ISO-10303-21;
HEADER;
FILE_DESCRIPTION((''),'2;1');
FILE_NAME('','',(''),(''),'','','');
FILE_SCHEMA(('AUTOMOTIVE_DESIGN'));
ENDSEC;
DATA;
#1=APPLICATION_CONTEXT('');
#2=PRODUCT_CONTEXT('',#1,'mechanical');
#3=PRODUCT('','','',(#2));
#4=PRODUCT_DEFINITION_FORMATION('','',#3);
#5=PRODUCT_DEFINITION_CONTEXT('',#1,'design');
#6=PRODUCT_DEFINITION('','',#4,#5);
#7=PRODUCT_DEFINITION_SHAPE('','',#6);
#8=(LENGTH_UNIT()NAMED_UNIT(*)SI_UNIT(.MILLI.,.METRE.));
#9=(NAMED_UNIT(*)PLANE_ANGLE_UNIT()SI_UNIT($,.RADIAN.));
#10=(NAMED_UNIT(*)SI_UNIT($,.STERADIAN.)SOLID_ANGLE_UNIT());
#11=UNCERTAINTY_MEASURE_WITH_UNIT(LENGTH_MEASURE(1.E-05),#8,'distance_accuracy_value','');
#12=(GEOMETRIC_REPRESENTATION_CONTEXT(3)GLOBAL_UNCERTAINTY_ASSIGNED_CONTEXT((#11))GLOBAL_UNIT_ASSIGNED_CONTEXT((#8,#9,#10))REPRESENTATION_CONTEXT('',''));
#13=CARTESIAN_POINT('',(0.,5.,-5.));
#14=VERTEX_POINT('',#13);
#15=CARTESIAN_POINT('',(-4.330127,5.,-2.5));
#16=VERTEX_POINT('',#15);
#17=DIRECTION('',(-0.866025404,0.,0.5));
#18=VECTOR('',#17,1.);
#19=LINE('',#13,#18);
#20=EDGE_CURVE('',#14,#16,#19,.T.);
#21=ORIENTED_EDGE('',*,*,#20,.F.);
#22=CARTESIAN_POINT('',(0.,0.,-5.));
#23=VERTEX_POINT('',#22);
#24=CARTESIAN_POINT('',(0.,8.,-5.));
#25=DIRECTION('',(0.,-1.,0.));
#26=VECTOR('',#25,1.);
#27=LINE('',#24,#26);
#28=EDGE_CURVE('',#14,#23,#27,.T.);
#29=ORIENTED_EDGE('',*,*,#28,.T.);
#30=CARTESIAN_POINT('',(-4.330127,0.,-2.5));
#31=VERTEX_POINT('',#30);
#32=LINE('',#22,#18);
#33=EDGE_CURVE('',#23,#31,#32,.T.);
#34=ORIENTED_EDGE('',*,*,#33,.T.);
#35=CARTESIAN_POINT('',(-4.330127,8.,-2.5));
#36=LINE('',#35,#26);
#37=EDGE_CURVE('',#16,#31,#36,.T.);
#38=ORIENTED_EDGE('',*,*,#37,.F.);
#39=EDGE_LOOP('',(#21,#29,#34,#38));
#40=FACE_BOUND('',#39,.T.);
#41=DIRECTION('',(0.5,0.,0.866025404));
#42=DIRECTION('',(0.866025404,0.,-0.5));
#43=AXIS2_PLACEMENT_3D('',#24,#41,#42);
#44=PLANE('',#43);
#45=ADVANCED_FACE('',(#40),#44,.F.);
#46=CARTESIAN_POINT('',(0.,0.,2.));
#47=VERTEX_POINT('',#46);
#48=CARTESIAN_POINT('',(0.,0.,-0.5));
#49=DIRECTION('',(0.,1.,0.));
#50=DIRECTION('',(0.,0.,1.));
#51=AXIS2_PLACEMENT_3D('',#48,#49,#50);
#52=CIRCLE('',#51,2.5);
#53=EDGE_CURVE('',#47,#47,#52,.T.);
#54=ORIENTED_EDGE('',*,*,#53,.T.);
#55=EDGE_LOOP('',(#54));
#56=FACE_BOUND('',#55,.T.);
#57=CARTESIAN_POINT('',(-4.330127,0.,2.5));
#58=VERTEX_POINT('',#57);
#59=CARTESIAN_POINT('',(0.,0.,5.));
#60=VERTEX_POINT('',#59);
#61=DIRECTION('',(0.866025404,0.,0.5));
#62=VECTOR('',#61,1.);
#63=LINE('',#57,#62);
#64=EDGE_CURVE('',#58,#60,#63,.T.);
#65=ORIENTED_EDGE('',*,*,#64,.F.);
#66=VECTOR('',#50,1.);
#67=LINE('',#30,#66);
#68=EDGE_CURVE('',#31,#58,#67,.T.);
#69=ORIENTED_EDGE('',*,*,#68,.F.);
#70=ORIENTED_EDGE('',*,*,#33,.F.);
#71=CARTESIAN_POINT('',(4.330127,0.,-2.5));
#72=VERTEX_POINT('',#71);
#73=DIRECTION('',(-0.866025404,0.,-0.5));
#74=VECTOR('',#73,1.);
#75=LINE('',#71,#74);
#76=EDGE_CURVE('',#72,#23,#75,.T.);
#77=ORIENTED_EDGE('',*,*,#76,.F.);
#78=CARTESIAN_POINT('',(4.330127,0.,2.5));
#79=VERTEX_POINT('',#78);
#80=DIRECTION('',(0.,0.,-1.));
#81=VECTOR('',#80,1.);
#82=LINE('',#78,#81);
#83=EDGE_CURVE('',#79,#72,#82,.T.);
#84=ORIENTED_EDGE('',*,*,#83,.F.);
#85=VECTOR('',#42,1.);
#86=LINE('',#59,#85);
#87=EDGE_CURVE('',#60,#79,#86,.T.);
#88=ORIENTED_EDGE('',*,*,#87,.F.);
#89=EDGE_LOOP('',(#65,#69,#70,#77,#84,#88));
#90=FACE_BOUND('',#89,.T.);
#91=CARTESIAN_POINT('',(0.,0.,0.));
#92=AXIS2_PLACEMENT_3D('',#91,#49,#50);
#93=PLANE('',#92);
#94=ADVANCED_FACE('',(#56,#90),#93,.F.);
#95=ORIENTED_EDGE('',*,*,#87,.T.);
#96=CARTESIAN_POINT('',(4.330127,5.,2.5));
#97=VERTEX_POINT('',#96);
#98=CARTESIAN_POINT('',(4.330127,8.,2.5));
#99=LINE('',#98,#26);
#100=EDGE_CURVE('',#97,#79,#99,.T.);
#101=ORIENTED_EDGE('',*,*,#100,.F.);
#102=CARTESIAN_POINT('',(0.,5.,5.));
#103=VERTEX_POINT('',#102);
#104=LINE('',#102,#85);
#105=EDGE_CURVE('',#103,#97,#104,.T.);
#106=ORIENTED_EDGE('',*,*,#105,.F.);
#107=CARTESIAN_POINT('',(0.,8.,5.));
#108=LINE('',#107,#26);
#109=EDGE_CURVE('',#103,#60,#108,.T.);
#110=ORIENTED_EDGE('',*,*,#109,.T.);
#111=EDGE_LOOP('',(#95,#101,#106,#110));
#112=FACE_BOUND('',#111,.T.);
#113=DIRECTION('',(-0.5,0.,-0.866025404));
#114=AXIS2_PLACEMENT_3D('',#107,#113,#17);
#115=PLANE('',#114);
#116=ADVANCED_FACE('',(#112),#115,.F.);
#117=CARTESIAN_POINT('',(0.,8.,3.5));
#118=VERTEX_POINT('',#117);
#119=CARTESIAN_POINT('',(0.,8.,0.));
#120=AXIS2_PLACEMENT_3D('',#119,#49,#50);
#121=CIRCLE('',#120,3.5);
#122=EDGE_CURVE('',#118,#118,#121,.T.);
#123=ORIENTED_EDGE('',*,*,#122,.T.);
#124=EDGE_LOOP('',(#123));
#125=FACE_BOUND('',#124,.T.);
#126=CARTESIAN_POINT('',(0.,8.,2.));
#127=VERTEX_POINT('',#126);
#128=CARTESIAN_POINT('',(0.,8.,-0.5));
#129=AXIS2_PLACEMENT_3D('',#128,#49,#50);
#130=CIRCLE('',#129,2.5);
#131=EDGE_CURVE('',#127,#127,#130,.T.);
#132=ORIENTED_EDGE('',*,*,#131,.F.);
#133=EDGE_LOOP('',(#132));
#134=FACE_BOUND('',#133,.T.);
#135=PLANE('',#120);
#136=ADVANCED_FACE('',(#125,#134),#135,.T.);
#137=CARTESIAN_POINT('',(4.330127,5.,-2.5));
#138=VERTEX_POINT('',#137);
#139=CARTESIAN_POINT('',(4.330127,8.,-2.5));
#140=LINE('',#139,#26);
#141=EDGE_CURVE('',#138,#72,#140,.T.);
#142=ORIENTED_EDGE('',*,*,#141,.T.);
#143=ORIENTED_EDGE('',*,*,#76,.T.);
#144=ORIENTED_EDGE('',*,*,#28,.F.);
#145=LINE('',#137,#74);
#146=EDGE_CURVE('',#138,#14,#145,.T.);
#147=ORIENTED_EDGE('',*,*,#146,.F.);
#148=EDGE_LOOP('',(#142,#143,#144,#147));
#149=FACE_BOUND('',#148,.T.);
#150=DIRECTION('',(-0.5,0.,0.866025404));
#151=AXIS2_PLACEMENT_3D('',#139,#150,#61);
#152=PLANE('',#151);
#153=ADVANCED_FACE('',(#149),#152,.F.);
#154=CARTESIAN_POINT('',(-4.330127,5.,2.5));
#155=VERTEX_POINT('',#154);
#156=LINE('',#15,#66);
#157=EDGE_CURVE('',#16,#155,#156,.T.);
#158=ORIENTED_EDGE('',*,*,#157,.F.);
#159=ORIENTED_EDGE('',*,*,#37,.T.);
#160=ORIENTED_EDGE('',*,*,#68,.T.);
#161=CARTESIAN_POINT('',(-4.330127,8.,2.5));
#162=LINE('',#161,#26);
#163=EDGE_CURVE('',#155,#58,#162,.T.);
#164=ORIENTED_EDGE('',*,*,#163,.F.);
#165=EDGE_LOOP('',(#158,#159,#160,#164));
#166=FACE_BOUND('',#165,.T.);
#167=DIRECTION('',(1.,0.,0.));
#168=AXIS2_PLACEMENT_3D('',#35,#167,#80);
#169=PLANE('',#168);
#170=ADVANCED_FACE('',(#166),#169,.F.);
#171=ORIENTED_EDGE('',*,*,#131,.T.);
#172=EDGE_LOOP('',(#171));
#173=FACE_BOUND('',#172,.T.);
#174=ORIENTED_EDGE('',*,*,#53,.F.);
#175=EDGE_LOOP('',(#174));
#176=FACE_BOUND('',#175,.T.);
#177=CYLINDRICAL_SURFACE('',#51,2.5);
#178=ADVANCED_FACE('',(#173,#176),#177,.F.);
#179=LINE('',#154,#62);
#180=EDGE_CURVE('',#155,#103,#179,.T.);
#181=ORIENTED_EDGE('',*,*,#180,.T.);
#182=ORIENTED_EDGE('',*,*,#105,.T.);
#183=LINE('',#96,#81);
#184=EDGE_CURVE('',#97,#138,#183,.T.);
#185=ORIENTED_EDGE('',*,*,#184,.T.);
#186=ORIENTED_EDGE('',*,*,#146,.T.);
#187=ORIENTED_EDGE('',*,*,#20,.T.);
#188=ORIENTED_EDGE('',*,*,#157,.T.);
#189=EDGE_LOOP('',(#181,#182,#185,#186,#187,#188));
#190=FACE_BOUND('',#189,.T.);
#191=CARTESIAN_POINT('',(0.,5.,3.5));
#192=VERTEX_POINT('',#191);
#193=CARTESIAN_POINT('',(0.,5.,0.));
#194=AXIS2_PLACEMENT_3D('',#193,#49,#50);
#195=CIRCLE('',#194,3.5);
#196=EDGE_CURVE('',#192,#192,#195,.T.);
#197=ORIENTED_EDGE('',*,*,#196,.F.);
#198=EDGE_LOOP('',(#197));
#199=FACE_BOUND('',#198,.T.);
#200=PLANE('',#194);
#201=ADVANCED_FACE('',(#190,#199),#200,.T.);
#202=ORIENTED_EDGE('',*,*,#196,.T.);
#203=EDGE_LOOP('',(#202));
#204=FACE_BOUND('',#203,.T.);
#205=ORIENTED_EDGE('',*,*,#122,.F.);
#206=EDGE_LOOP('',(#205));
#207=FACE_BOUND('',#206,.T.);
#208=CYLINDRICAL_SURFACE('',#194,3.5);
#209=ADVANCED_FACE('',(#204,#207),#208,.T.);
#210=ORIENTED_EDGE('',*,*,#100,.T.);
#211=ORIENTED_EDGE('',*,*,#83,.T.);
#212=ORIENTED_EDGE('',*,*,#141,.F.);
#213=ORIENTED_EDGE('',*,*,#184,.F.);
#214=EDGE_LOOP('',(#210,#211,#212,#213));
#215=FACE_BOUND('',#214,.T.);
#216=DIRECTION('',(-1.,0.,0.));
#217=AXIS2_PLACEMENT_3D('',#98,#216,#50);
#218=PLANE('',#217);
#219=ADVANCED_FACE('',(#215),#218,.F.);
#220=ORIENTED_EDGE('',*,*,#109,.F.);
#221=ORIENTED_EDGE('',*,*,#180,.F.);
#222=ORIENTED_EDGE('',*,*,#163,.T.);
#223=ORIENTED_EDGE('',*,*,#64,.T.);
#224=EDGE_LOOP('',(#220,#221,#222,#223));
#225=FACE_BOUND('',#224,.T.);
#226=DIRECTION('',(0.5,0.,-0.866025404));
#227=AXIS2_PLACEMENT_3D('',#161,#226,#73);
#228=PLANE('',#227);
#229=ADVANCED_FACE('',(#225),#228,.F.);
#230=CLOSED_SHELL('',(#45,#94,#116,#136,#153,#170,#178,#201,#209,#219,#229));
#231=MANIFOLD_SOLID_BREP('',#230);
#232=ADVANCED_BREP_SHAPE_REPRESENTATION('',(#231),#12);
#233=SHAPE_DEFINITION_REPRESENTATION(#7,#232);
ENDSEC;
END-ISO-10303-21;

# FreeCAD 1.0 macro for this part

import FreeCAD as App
import Part
import Sketcher
Q = App.Units.Quantity

doc = App.newDocument("Part")
body = doc.addObject("PartDesign::Body", "Body")

# Sketch on XZ plane
sketch1 = body.newObject("Sketcher::SketchObject", "Sketch")
sketch1.AttachmentSupport = (doc.getObject("XZ_Plane"), [""])
sketch1.MapMode = "FlatFace"
sketch1.addGeometry(Part.LineSegment(App.Vector(4, -2, 0), App.Vector(0, -5, 0)), False)
sketch1.addGeometry(Part.LineSegment(App.Vector(0, -5, 0), App.Vector(-4, -2, 0)), False)
sketch1.addGeometry(Part.LineSegment(App.Vector(-4, -2, 0), App.Vector(-4, 2, 0)), False)
sketch1.addGeometry(Part.LineSegment(App.Vector(-4, 2, 0), App.Vector(0, 5, 0)), False)
sketch1.addGeometry(Part.LineSegment(App.Vector(0, 5, 0), App.Vector(4, 2, 0)), False)
sketch1.addGeometry(Part.LineSegment(App.Vector(4, 2, 0), App.Vector(4, -2, 0)), False)
sketch1.addConstraint(Sketcher.Constraint("Coincident", 0, 2, 1, 1))
sketch1.addConstraint(Sketcher.Constraint("Coincident", 1, 2, 2, 1))
sketch1.addConstraint(Sketcher.Constraint("Coincident", 2, 2, 3, 1))
sketch1.addConstraint(Sketcher.Constraint("Coincident", 3, 2, 4, 1))
sketch1.addConstraint(Sketcher.Constraint("Coincident", 4, 2, 5, 1))
sketch1.addConstraint(Sketcher.Constraint("Coincident", 5, 2, 0, 1))
sketch1.addConstraint(Sketcher.Constraint("Vertical", 2))
sketch1.addConstraint(Sketcher.Constraint("Vertical", 5))
sketch1.addConstraint(Sketcher.Constraint("Symmetric", 0, 2, 3, 2, -1, 1))
sketch1.addConstraint(Sketcher.Constraint("Symmetric", 1, 2, 4, 2, -1, 1))
sketch1.addConstraint(Sketcher.Constraint("PointOnObject", 0, 2, -2))
sketch1.addConstraint(Sketcher.Constraint("Parallel", 0, 3))
sketch1.addConstraint(Sketcher.Constraint("Horizontal", 2, 2, 4, 2))
sketch1.addConstraint(Sketcher.Constraint("DistanceY", 2, 1, 2, 2, Q("5 mm")))
sketch1.addConstraint(Sketcher.Constraint("Angle", 0, Q("-150 deg")))
sketch1.addConstraint(Sketcher.Constraint("Distance", 0, Q("5 mm")))
pad1 = body.newObject("PartDesign::Pad", "Pad")
pad1.Profile = sketch1
pad1.Length = 8
pad1.Reversed = True

# Sketch on XZ plane
sketch2 = body.newObject("Sketcher::SketchObject", "Sketch001")
sketch2.AttachmentSupport = (doc.getObject("XZ_Plane"), [""])
sketch2.MapMode = "FlatFace"
sketch2.AttachmentOffset = App.Placement(App.Vector(0, 0, -8), App.Rotation())
sketch2.addGeometry(Part.Circle(App.Vector(0, -0.5, 0), App.Vector(0, 0, 1), 2.5), False)
sketch2.addConstraint(Sketcher.Constraint("PointOnObject", 0, 3, -2))
sketch2.addConstraint(Sketcher.Constraint("Diameter", 0, Q("5 mm")))
sketch2.addConstraint(Sketcher.Constraint("DistanceY", 0, 3, -1, 1, Q("0.5 mm")))
pocket1 = body.newObject("PartDesign::Pocket", "Pocket")
pocket1.Profile = sketch2
pocket1.Length = 8
pocket1.Reversed = True

# Sketch on XZ plane
sketch3 = body.newObject("Sketcher::SketchObject", "Sketch002")
sketch3.AttachmentSupport = (doc.getObject("XZ_Plane"), [""])
sketch3.MapMode = "FlatFace"
sketch3.AttachmentOffset = App.Placement(App.Vector(0, 0, -8), App.Rotation())
sketch3.addGeometry(Part.LineSegment(App.Vector(-4.3, -2.5, 0), App.Vector(-4.3, 2.5, 0)), False)
sketch3.addGeometry(Part.LineSegment(App.Vector(-4.3, 2.5, 0), App.Vector(0, 5, 0)), False)
sketch3.addGeometry(Part.LineSegment(App.Vector(0, 5, 0), App.Vector(4.3, 2.5, 0)), False)
sketch3.addGeometry(Part.LineSegment(App.Vector(4.3, 2.5, 0), App.Vector(4.3, -2.5, 0)), False)
sketch3.addGeometry(Part.LineSegment(App.Vector(4.3, -2.5, 0), App.Vector(0, -5, 0)), False)
sketch3.addGeometry(Part.LineSegment(App.Vector(0, -5, 0), App.Vector(-4.3, -2.5, 0)), False)
sketch3.addGeometry(Part.Circle(App.Vector(0, 0, 0), App.Vector(0, 0, 1), 3.5), False)
sketch3.addConstraint(Sketcher.Constraint("Coincident", 0, 2, 1, 1))
sketch3.addConstraint(Sketcher.Constraint("Coincident", 1, 2, 2, 1))
sketch3.addConstraint(Sketcher.Constraint("Coincident", 2, 2, 3, 1))
sketch3.addConstraint(Sketcher.Constraint("Coincident", 3, 2, 4, 1))
sketch3.addConstraint(Sketcher.Constraint("Coincident", 4, 2, 5, 1))
sketch3.addConstraint(Sketcher.Constraint("Coincident", 5, 2, 0, 1))
sketch3.addConstraint(Sketcher.Constraint("Vertical", 0))
sketch3.addConstraint(Sketcher.Constraint("Vertical", 3))
sketch3.addConstraint(Sketcher.Constraint("Coincident", 6, 3, -1, 1))
sketch3.addConstraint(Sketcher.Constraint("Symmetric", 0, 2, 3, 2, -1, 1))
sketch3.addConstraint(Sketcher.Constraint("Symmetric", 1, 2, 4, 2, -1, 1))
sketch3.addConstraint(Sketcher.Constraint("PointOnObject", 1, 2, -2))
sketch3.addConstraint(Sketcher.Constraint("Parallel", 2, 5))
sketch3.addConstraint(Sketcher.Constraint("Horizontal", 0, 2, 2, 2))
sketch3.addConstraint(Sketcher.Constraint("Diameter", 6, Q("7 mm")))
sketch3.addConstraint(Sketcher.Constraint("DistanceY", 0, 1, 0, 2, Q("5 mm")))
sketch3.addConstraint(Sketcher.Constraint("Angle", 1, Q("30 deg")))
sketch3.addConstraint(Sketcher.Constraint("Distance", 1, Q("5 mm")))
pocket2 = body.newObject("PartDesign::Pocket", "Pocket001")
pocket2.Profile = sketch3
pocket2.Length = 3
pocket2.Reversed = True

doc.recompute()
